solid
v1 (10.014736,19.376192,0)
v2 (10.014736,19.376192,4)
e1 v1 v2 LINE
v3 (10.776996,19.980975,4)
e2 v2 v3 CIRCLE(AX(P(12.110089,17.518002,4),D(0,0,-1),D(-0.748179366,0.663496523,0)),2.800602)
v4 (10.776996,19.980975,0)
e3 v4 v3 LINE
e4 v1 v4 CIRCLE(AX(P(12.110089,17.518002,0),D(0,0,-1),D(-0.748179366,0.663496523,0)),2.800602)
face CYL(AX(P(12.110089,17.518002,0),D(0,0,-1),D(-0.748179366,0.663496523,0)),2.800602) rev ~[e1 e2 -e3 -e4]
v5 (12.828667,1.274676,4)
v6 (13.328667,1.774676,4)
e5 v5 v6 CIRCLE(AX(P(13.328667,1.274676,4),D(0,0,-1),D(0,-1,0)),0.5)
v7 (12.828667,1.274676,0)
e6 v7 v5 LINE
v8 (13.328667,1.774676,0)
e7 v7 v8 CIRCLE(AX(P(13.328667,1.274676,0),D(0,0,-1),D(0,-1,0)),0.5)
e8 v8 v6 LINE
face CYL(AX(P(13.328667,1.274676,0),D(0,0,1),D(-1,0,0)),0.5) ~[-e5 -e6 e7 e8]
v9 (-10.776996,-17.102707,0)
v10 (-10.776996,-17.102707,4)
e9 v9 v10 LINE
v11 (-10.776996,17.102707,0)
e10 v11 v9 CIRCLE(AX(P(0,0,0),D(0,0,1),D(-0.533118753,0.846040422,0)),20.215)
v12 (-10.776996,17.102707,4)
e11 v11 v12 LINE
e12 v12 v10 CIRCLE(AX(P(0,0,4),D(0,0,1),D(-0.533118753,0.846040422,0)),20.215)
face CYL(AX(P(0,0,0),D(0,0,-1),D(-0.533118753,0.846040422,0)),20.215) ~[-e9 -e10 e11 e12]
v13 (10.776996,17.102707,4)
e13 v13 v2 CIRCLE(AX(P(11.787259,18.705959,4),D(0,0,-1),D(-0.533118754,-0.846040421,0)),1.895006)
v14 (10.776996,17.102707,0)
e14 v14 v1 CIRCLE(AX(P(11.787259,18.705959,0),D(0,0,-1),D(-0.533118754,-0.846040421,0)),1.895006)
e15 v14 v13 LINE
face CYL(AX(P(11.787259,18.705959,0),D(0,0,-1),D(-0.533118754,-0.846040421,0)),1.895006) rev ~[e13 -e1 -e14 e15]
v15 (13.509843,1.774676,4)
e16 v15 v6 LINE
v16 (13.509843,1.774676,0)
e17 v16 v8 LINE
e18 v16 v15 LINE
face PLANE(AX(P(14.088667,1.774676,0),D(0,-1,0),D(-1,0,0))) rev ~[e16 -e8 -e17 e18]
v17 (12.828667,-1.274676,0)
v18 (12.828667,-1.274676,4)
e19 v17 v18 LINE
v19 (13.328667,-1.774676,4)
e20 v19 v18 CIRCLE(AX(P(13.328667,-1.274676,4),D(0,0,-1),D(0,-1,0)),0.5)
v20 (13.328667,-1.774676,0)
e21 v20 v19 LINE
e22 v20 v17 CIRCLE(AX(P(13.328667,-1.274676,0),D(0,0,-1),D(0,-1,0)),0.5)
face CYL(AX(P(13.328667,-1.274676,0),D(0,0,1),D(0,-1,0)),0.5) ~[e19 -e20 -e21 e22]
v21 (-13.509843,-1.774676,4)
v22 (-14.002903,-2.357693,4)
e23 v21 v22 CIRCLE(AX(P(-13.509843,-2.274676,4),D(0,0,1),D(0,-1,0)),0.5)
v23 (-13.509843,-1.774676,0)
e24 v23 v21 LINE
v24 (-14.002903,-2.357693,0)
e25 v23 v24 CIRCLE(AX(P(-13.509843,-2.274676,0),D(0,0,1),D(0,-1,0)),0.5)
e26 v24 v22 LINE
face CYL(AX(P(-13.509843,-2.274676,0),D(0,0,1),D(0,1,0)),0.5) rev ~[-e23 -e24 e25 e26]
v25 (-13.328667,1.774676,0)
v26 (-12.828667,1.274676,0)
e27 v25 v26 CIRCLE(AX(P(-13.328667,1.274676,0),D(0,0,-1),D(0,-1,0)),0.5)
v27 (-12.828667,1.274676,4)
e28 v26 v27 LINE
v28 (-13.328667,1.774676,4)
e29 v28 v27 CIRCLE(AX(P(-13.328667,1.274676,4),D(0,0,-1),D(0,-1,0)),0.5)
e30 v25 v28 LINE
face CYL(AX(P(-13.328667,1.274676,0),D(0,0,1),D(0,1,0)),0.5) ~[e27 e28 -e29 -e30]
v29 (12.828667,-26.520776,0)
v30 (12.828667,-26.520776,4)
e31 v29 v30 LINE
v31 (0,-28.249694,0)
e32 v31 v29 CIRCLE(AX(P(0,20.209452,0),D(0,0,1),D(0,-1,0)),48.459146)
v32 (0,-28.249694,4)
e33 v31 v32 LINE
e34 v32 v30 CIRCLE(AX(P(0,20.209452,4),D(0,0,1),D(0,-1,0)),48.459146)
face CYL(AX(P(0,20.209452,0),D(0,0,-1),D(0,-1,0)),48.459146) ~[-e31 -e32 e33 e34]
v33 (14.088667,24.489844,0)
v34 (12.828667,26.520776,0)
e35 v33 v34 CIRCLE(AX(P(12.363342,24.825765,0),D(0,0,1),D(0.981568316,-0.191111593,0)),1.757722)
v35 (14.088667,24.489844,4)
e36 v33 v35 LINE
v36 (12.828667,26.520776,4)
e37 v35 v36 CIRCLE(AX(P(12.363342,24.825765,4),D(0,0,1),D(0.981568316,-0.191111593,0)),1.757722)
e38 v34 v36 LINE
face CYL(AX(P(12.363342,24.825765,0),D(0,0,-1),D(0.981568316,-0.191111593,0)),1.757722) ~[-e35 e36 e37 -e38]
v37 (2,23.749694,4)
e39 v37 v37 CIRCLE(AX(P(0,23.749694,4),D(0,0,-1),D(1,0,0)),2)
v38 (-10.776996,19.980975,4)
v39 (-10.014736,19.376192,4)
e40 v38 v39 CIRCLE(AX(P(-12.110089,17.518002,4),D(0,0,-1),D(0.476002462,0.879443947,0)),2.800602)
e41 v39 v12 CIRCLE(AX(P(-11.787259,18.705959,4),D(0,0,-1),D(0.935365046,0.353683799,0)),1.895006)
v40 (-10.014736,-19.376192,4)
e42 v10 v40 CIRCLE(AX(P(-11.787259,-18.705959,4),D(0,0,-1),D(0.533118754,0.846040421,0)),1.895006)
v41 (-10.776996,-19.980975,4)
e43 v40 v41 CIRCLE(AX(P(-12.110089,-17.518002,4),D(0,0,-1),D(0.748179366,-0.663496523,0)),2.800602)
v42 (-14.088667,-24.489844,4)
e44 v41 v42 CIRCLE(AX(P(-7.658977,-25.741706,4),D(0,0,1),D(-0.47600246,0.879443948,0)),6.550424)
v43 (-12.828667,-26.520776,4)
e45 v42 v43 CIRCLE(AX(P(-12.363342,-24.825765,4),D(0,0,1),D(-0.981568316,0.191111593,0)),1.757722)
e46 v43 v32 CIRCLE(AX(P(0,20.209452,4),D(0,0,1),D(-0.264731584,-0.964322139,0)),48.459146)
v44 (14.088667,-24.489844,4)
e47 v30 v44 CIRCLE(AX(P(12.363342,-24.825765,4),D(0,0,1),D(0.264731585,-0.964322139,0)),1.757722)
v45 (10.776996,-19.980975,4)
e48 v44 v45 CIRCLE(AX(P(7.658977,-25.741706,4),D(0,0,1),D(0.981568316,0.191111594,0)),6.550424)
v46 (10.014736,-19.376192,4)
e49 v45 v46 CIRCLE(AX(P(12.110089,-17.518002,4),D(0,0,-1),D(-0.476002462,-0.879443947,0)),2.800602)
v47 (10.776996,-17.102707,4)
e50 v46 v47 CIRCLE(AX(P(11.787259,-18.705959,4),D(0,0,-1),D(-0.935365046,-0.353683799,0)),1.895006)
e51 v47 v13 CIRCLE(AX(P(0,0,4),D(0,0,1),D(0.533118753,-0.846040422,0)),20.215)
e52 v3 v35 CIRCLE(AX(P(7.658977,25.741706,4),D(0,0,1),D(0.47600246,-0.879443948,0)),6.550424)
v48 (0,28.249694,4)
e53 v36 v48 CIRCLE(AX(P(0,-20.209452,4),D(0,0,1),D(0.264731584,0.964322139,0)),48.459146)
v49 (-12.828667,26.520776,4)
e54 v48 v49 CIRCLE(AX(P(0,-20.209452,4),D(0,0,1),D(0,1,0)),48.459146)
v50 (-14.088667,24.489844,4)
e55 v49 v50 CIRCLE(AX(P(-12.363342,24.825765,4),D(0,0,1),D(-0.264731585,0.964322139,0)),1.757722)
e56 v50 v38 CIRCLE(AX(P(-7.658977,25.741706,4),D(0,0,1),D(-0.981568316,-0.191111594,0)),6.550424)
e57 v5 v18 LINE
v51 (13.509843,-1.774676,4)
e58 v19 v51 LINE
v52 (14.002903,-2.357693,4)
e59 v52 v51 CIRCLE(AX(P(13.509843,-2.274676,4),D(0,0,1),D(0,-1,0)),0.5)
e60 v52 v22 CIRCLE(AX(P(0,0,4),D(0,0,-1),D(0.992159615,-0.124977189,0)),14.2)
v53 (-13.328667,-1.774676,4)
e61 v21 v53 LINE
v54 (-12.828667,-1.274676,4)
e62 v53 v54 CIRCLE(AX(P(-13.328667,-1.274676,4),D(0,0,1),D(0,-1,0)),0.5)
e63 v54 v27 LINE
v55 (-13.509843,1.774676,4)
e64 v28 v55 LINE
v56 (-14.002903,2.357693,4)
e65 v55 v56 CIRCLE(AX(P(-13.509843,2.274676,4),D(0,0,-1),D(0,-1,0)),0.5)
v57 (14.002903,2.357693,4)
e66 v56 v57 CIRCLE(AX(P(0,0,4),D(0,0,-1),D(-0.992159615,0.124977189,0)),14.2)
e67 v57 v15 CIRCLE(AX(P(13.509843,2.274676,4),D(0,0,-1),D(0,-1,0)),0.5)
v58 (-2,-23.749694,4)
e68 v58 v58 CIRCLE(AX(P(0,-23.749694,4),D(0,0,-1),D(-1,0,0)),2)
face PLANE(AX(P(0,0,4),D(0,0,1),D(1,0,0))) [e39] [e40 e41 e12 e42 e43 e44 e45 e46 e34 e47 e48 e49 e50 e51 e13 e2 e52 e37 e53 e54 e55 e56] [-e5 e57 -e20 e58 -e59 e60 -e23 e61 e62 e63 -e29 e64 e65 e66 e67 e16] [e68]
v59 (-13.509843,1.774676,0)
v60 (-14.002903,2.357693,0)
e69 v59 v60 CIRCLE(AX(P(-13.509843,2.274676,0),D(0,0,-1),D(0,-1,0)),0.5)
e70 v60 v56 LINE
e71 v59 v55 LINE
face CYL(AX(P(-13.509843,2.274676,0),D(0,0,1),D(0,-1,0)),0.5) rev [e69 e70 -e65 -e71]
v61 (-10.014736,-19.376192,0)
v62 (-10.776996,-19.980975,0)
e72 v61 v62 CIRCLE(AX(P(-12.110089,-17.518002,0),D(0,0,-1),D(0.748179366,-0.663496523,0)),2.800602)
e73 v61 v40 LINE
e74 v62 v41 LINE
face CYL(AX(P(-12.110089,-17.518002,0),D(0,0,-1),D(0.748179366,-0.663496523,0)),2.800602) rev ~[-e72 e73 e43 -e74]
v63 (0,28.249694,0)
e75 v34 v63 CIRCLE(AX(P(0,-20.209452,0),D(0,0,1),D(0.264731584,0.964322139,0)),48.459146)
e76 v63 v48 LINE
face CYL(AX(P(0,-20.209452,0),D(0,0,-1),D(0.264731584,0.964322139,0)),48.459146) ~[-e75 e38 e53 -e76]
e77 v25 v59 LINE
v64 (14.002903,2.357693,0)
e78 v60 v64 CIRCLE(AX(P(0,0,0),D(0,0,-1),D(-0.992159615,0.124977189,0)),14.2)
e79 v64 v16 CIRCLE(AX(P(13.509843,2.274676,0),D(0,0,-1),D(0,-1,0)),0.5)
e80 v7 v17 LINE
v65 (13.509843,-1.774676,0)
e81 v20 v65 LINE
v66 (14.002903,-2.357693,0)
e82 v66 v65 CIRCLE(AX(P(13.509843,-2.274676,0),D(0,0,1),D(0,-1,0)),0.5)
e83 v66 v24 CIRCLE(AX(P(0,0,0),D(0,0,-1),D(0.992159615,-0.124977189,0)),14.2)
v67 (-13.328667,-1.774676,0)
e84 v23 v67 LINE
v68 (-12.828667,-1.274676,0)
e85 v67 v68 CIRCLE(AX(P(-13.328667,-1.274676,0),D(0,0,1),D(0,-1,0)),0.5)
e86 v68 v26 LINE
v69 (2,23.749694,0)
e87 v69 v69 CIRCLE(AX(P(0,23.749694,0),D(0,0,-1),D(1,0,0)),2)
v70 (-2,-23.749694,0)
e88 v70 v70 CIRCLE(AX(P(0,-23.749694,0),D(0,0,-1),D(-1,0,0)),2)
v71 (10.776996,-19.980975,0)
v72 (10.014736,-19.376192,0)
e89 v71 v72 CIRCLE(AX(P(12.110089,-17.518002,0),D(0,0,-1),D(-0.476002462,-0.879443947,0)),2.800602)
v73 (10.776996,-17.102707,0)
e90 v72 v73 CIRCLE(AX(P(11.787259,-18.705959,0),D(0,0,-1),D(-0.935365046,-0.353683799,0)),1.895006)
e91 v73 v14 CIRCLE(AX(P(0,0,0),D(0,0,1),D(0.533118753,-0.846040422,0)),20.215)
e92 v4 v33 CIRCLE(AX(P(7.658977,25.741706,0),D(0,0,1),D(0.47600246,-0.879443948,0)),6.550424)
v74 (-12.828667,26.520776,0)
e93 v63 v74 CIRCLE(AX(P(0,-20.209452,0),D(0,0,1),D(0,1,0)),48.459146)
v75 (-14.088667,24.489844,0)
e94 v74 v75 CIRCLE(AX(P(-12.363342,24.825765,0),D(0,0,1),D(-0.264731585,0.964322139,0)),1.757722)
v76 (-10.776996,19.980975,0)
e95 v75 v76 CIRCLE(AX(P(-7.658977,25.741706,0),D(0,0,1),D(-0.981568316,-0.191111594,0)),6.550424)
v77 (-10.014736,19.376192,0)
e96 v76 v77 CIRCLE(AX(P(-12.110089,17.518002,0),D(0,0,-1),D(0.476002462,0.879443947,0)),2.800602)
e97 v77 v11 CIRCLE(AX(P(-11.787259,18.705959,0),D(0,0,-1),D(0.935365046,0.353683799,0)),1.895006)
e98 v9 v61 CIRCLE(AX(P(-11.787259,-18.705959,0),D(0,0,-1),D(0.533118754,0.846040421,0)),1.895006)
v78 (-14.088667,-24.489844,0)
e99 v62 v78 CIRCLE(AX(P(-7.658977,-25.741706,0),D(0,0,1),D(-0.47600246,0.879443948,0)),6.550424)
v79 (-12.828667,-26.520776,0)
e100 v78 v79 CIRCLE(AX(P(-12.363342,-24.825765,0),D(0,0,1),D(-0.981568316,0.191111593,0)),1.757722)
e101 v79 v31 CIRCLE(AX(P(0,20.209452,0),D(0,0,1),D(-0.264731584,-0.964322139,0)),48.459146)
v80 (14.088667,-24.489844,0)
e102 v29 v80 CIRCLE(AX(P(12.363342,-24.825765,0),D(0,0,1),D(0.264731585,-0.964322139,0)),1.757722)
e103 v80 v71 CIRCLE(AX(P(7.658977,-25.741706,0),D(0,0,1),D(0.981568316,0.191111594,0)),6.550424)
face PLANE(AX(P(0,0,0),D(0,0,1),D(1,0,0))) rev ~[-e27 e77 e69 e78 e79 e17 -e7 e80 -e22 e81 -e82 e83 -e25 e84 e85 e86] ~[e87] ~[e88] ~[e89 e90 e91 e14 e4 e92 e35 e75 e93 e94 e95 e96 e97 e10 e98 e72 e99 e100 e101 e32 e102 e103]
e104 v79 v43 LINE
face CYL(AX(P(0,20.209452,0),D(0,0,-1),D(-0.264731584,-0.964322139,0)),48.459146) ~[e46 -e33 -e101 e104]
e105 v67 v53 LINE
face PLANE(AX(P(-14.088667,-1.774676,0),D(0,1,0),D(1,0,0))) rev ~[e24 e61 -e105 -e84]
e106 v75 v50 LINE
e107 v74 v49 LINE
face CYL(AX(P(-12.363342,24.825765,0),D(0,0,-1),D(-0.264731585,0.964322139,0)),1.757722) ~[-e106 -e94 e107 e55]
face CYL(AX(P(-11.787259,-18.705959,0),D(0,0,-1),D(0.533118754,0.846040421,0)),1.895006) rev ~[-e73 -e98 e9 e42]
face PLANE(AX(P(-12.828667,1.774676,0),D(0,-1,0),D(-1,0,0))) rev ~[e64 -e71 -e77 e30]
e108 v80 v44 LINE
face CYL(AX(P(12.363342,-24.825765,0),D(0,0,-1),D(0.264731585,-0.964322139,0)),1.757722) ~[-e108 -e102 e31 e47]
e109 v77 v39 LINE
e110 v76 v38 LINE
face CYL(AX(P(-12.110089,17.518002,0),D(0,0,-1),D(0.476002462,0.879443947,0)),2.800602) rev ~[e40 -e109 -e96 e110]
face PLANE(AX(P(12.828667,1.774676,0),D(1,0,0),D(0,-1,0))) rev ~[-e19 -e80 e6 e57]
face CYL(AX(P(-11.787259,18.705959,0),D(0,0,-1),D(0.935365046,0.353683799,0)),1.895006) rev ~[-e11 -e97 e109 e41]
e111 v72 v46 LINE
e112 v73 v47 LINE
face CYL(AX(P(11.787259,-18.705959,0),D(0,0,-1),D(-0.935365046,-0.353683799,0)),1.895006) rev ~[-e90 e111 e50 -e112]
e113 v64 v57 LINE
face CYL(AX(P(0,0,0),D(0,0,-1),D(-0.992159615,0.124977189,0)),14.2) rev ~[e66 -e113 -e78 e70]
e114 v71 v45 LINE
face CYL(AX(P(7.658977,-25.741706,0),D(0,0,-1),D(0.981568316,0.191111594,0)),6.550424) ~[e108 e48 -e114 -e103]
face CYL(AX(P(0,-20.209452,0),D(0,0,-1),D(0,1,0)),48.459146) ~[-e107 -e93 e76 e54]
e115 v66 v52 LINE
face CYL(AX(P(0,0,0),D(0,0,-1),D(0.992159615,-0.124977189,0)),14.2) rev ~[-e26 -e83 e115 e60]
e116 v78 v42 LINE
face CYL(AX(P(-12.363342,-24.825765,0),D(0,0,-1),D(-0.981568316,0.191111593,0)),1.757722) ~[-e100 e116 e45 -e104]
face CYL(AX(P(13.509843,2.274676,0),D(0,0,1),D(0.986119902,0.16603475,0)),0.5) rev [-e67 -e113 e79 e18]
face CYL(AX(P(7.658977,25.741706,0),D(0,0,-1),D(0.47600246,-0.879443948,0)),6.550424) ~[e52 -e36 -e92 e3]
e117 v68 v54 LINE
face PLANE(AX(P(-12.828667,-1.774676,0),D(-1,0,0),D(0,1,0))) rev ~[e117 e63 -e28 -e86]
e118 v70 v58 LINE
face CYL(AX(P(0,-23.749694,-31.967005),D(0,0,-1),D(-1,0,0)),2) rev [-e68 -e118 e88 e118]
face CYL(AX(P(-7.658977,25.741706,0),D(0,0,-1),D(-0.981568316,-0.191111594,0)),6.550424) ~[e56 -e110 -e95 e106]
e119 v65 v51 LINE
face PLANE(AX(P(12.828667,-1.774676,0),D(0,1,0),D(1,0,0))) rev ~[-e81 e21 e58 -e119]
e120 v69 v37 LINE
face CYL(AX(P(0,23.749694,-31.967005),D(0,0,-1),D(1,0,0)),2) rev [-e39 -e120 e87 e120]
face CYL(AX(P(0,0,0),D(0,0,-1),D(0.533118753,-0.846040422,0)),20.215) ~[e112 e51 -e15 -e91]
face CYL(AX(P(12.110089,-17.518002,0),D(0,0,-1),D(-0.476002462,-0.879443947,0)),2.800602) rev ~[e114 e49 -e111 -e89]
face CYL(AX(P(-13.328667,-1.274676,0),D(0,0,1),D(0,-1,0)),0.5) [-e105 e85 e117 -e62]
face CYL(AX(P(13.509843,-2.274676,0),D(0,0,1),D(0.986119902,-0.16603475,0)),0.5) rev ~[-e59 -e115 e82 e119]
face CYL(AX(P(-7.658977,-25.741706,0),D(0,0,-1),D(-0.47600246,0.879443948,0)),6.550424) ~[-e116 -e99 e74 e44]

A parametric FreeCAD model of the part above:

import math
import FreeCAD as App
import Part
import Sketcher
from FreeCAD import Vector
Q = App.Units.Quantity


def edges_at(feature, points):
    """Names of the edges that pass closest to the given points."""
    edges = feature.Shape.Edges
    near = lambda p: min(range(len(edges)), key=lambda i: edges[i].distToShape(Part.Vertex(*p))[0])
    return sorted({f"Edge{near(p) + 1}" for p in points})

doc = App.newDocument("Part")
body = doc.addObject("PartDesign::Body", "Body")

# Sketch on XY plane
sketch1 = doc.addObject("Sketcher::SketchObject", "Sketch")
body.addObject(sketch1)
sketch1.AttachmentSupport = (doc.XY_Plane, [""])
sketch1.MapMode = "FlatFace"
sketch1.addGeometry([
    Part.ArcOfCircle(Part.Circle(Vector(-11.8, 18.7, 0), Vector(0, 0, 1), 1.9), math.radians(-58), math.radians(21)),  # 0
    Part.ArcOfCircle(Part.Circle(Vector(0, 0, 0), Vector(0, 0, 1), 20.2), math.radians(122), math.radians(238)),  # 1
    Part.ArcOfCircle(Part.Circle(Vector(-11.8, -18.7, 0), Vector(0, 0, 1), 1.9), math.radians(-21), math.radians(58)),  # 2
    Part.ArcOfCircle(Part.Circle(Vector(-12.1, -17.5, 0), Vector(0, 0, 1), 2.8), math.radians(-62), math.radians(-42)),  # 3
    Part.ArcOfCircle(Part.Circle(Vector(-7.7, -25.7, 0), Vector(0, 0, 1), 6.6), math.radians(118), math.radians(169)),  # 4
    Part.ArcOfCircle(Part.Circle(Vector(-12.4, -24.8, 0), Vector(0, 0, 1), 1.8), math.radians(169), math.radians(255)),  # 5
    Part.ArcOfCircle(Part.Circle(Vector(0, 20.2, 0), Vector(0, 0, 1), 48.5), math.radians(-105.35), math.radians(-90)),  # 6
    Part.ArcOfCircle(Part.Circle(Vector(0, 20.2, 0), Vector(0, 0, 1), 48.5), math.radians(-90), math.radians(-74.65)),  # 7
    Part.ArcOfCircle(Part.Circle(Vector(12.4, -24.8, 0), Vector(0, 0, 1), 1.8), math.radians(-75), math.radians(11)),  # 8
    Part.ArcOfCircle(Part.Circle(Vector(7.7, -25.7, 0), Vector(0, 0, 1), 6.6), math.radians(11), math.radians(62)),  # 9
    Part.ArcOfCircle(Part.Circle(Vector(12.1, -17.5, 0), Vector(0, 0, 1), 2.8), math.radians(-138), math.radians(-118)),  # 10
    Part.ArcOfCircle(Part.Circle(Vector(11.8, -18.7, 0), Vector(0, 0, 1), 1.9), math.radians(122), math.radians(201)),  # 11
    Part.ArcOfCircle(Part.Circle(Vector(0, 0, 0), Vector(0, 0, 1), 20.2), math.radians(-58), math.radians(58)),  # 12
    Part.ArcOfCircle(Part.Circle(Vector(11.8, 18.7, 0), Vector(0, 0, 1), 1.9), math.radians(159), math.radians(238)),  # 13
    Part.ArcOfCircle(Part.Circle(Vector(12.1, 17.5, 0), Vector(0, 0, 1), 2.8), math.radians(118), math.radians(138)),  # 14
    Part.ArcOfCircle(Part.Circle(Vector(7.7, 25.7, 0), Vector(0, 0, 1), 6.6), math.radians(-62), math.radians(-11)),  # 15
    Part.ArcOfCircle(Part.Circle(Vector(12.4, 24.8, 0), Vector(0, 0, 1), 1.8), math.radians(-11), math.radians(75)),  # 16
    Part.ArcOfCircle(Part.Circle(Vector(0, -20.2, 0), Vector(0, 0, 1), 48.5), math.radians(74.65), math.radians(90)),  # 17
    Part.ArcOfCircle(Part.Circle(Vector(0, -20.2, 0), Vector(0, 0, 1), 48.5), math.radians(90), math.radians(105.35)),  # 18
    Part.ArcOfCircle(Part.Circle(Vector(-12.4, 24.8, 0), Vector(0, 0, 1), 1.8), math.radians(105), math.radians(191)),  # 19
    Part.ArcOfCircle(Part.Circle(Vector(-7.7, 25.7, 0), Vector(0, 0, 1), 6.6), math.radians(-169), math.radians(-118)),  # 20
    Part.ArcOfCircle(Part.Circle(Vector(-12.1, 17.5, 0), Vector(0, 0, 1), 2.8), math.radians(42), math.radians(62)),  # 21
    Part.LineSegment(Vector(-14.1, -1.8, 0), Vector(-12.8, -1.8, 0)),  # 22
    Part.LineSegment(Vector(-12.8, -1.8, 0), Vector(-12.8, 1.8, 0)),  # 23
    Part.LineSegment(Vector(-12.8, 1.8, 0), Vector(-14.1, 1.8, 0)),  # 24
    Part.ArcOfCircle(Part.Circle(Vector(0, 0, 0), Vector(0, 0, 1), 14.2), math.radians(7), math.radians(173)),  # 25
    Part.LineSegment(Vector(14.1, 1.8, 0), Vector(12.8, 1.8, 0)),  # 26
    Part.LineSegment(Vector(12.8, 1.8, 0), Vector(12.8, -1.8, 0)),  # 27
    Part.LineSegment(Vector(12.8, -1.8, 0), Vector(14.1, -1.8, 0)),  # 28
    Part.ArcOfCircle(Part.Circle(Vector(0, 0, 0), Vector(0, 0, 1), 14.2), math.radians(-173), math.radians(-7)),  # 29
], False)
sketch1.addConstraint([
    Sketcher.Constraint("Tangent", 0, 1, 1, 1),
    Sketcher.Constraint("Tangent", 1, 2, 2, 2),
    Sketcher.Constraint("Coincident", 2, 1, 3, 2),
    Sketcher.Constraint("Tangent", 3, 1, 4, 1),
    Sketcher.Constraint("Tangent", 4, 2, 5, 1),
    Sketcher.Constraint("Tangent", 5, 2, 6, 1),
    Sketcher.Constraint("Tangent", 6, 2, 7, 1),
    Sketcher.Constraint("Tangent", 7, 2, 8, 1),
    Sketcher.Constraint("Tangent", 8, 2, 9, 1),
    Sketcher.Constraint("Tangent", 9, 2, 10, 2),
    Sketcher.Constraint("Coincident", 10, 1, 11, 2),
    Sketcher.Constraint("Tangent", 11, 1, 12, 1),
    Sketcher.Constraint("Tangent", 12, 2, 13, 2),
    Sketcher.Constraint("Coincident", 13, 1, 14, 2),
    Sketcher.Constraint("Tangent", 14, 1, 15, 1),
    Sketcher.Constraint("Tangent", 15, 2, 16, 1),
    Sketcher.Constraint("Tangent", 16, 2, 17, 1),
    Sketcher.Constraint("Tangent", 17, 2, 18, 1),
    Sketcher.Constraint("Tangent", 18, 2, 19, 1),
    Sketcher.Constraint("Tangent", 19, 2, 20, 1),
    Sketcher.Constraint("Tangent", 20, 2, 21, 2),
    Sketcher.Constraint("Coincident", 21, 1, 0, 2),
    Sketcher.Constraint("Coincident", 22, 2, 23, 1),
    Sketcher.Constraint("Coincident", 23, 2, 24, 1),
    Sketcher.Constraint("Coincident", 24, 2, 25, 2),
    Sketcher.Constraint("Coincident", 25, 1, 26, 1),
    Sketcher.Constraint("Coincident", 26, 2, 27, 1),
    Sketcher.Constraint("Coincident", 27, 2, 28, 1),
    Sketcher.Constraint("Coincident", 28, 2, 29, 2),
    Sketcher.Constraint("Coincident", 29, 1, 22, 1),
    Sketcher.Constraint("Horizontal", 22),
    Sketcher.Constraint("Vertical", 23),
    Sketcher.Constraint("Horizontal", 24),
    Sketcher.Constraint("Horizontal", 26),
    Sketcher.Constraint("Vertical", 27),
    Sketcher.Constraint("Horizontal", 28),
    Sketcher.Constraint("Coincident", 1, 3, -1, 1),
    Sketcher.Constraint("Coincident", 12, 3, -1, 1),
    Sketcher.Constraint("Coincident", 25, 3, -1, 1),
    Sketcher.Constraint("Coincident", 29, 3, -1, 1),
    Sketcher.Constraint("Equal", 0, 2),
    Sketcher.Constraint("Equal", 6, 7),
    Sketcher.Constraint("Equal", 5, 8),
    Sketcher.Constraint("Equal", 4, 9),
    Sketcher.Constraint("Equal", 3, 10),
    Sketcher.Constraint("Equal", 2, 11),
    Sketcher.Constraint("Equal", 1, 12),
    Sketcher.Constraint("Equal", 11, 13),
    Sketcher.Constraint("Equal", 10, 14),
    Sketcher.Constraint("Equal", 9, 15),
    Sketcher.Constraint("Equal", 8, 16),
    Sketcher.Constraint("Equal", 7, 17),
    Sketcher.Constraint("Equal", 17, 18),
    Sketcher.Constraint("Equal", 16, 19),
    Sketcher.Constraint("Equal", 15, 20),
    Sketcher.Constraint("Equal", 14, 21),
    Sketcher.Constraint("Equal", 25, 29),
    Sketcher.Constraint("Symmetric", 3, 3, 14, 3, -1, 1),
    Sketcher.Constraint("Symmetric", 5, 3, 16, 3, -1, 1),
    Sketcher.Constraint("Symmetric", 8, 3, 19, 3, -1, 1),
    Sketcher.Constraint("Symmetric", 10, 3, 21, 3, -1, 1),
    Sketcher.Constraint("Symmetric", 22, 2, 26, 2, -1, 1),
    Sketcher.Constraint("Symmetric", 5, 3, 8, 3, -2),
    Sketcher.Constraint("Symmetric", 3, 3, 10, 3, -2),
    Sketcher.Constraint("PointOnObject", 6, 2, -2),
    Sketcher.Constraint("PointOnObject", 17, 2, -2),
    Sketcher.Constraint("Horizontal", 2, 3, 11, 3),
    Sketcher.Constraint("Horizontal", 0, 3, 13, 3),
    Sketcher.Constraint("Horizontal", 24, 2, 25, 1),
    Sketcher.Constraint("Horizontal", 22, 2, 27, 2),
    Sketcher.Constraint("Vertical", 0, 3, 2, 3),
    Sketcher.Constraint("Vertical", 1, 2, 3, 1),
    Sketcher.Constraint("Vertical", 18, 2, 22, 2),
    Sketcher.Constraint("Vertical", 19, 2, 24, 2),
    Sketcher.Constraint("Radius", 25, Q("14.2 mm")),
    Sketcher.Constraint("Radius", 1, Q("20.215 mm")),
    Sketcher.Constraint("DistanceX", 22, 1, 22, 2, Q("1.26 mm")),
    Sketcher.Constraint("Radius", 0, Q("1.895006 mm")),
    Sketcher.Constraint("Radius", 3, Q("2.800602 mm")),
    Sketcher.Constraint("Radius", 4, Q("6.550424 mm")),
    Sketcher.Constraint("Radius", 5, Q("1.757722 mm")),
    Sketcher.Constraint("Radius", 6, Q("48.459146 mm")),
    Sketcher.Constraint("DistanceY", 0, 1, 20, 3, Q("8.638999 mm")),
    Sketcher.Constraint("DistanceX", 2, 3, 8, 3, Q("24.150601 mm")),
    Sketcher.Constraint("DistanceY", 5, 2, 3, 1, Q("6.539801 mm")),
])
pad1 = doc.addObject("PartDesign::Pad", "Pad")
body.addObject(pad1)
pad1.Profile = sketch1
pad1.Length = 4
doc.recompute()

fillet = doc.addObject("PartDesign::Fillet", "Fillet")
body.addObject(fillet)
fillet.Base = (pad1, edges_at(pad1, [
    (-12.829, 1.775, 2),
    (-12.829, -1.775, 2),
    (12.829, -1.775, 2),
    (12.829, 1.775, 2),
]))
fillet.Radius = 0.5
doc.recompute()

fillet2 = doc.addObject("PartDesign::Fillet", "Fillet001")
body.addObject(fillet2)
fillet2.Base = (fillet, edges_at(fillet, [
    (-14.089, 1.775, 2),
    (-14.089, -1.775, 2),
    (14.089, -1.775, 2),
    (14.089, 1.775, 2),
]))
fillet2.Radius = 0.5

# Sketch on XY plane
sketch2 = doc.addObject("Sketcher::SketchObject", "Sketch001")
body.addObject(sketch2)
sketch2.AttachmentSupport = (doc.XY_Plane, [""])
sketch2.MapMode = "FlatFace"
sketch2.AttachmentOffset = App.Placement(Vector(0, 0, 4), App.Rotation())
sketch2.addGeometry([
    Part.Circle(Vector(0, 23.7, 0), Vector(0, 0, 1), 2),
    Part.Circle(Vector(0, -23.7, 0), Vector(0, 0, 1), 2),
], False)
sketch2.addConstraint([
    Sketcher.Constraint("Equal", 0, 1),
    Sketcher.Constraint("Symmetric", 0, 3, 1, 3, -1, 1),
    Sketcher.Constraint("PointOnObject", 0, 3, -2),
    Sketcher.Constraint("Diameter", 0, Q("4 mm")),
    Sketcher.Constraint("DistanceY", 1, 3, 0, 3, Q("47.499388 mm")),
])
pocket1 = doc.addObject("PartDesign::Pocket", "Pocket")
body.addObject(pocket1)
pocket1.Profile = sketch2
pocket1.Type = "ThroughAll"
pocket1.Midplane = True

doc.recompute()
